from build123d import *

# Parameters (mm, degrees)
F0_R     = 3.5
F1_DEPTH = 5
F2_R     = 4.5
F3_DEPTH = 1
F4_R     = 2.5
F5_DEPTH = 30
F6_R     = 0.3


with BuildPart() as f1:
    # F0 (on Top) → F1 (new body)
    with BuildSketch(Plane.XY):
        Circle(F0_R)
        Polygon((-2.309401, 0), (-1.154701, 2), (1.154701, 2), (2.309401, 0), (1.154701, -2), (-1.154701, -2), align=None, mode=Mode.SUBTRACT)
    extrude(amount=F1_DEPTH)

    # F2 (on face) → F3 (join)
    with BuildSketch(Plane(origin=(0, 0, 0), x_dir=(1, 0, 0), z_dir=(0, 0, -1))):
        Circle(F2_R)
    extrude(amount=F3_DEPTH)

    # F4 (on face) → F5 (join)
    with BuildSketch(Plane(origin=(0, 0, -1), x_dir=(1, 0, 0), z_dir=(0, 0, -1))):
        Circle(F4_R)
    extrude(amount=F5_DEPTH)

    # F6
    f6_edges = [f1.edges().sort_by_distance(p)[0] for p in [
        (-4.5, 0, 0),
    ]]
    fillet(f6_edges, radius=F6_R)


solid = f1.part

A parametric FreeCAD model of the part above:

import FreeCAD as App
import Part
import Sketcher
Q = App.Units.Quantity


def edges_at(feature, points):
    """Names of the edges that pass closest to the given points."""
    edges = feature.Shape.Edges
    near = lambda p: min(range(len(edges)), key=lambda i: edges[i].distToShape(Part.Vertex(*p))[0])
    return sorted({f"Edge{near(p) + 1}" for p in points})

doc = App.newDocument("Part")
params = doc.addObject("Spreadsheet::Sheet", "Params")
for row, (alias, value) in enumerate([
    ("sketch1_diameter", "7 mm"),
    ("pad1_length", "5 mm"),
    ("sketch2_diameter", "9 mm"),
    ("pad2_length", "1 mm"),
    ("sketch3_diameter", "5 mm"),
    ("pad3_length", "30 mm"),
    ("fillet_radius", "0.3 mm"),
], start=1):
    params.set(f"A{row}", alias)
    params.set(f"B{row}", "=" + value)
    params.setAlias(f"B{row}", alias)

body = doc.addObject("PartDesign::Body", "Body")

sketch1 = body.newObject("Sketcher::SketchObject", "Sketch")
sketch1.AttachmentSupport = (doc.getObject("XY_Plane"), [""])
sketch1.MapMode = "FlatFace"
sketch1.addGeometry([
    Part.Circle(App.Vector(0, 0, 0), App.Vector(0, 0, 1), 3.5),
    Part.LineSegment(App.Vector(-1.154701, -2, 0), App.Vector(-2.309401, 0, 0)),
    Part.LineSegment(App.Vector(-2.309401, 0, 0), App.Vector(-1.154701, 2, 0)),
    Part.LineSegment(App.Vector(-1.154701, 2, 0), App.Vector(1.154701, 2, 0)),
    Part.LineSegment(App.Vector(1.154701, 2, 0), App.Vector(2.309401, 0, 0)),
    Part.LineSegment(App.Vector(2.309401, 0, 0), App.Vector(1.154701, -2, 0)),
    Part.LineSegment(App.Vector(1.154701, -2, 0), App.Vector(-1.154701, -2, 0)),
], False)
sketch1.addConstraint([
    Sketcher.Constraint("Coincident", 1, 2, 2, 1),
    Sketcher.Constraint("Coincident", 2, 2, 3, 1),
    Sketcher.Constraint("Coincident", 3, 2, 4, 1),
    Sketcher.Constraint("Coincident", 4, 2, 5, 1),
    Sketcher.Constraint("Coincident", 5, 2, 6, 1),
    Sketcher.Constraint("Coincident", 6, 2, 1, 1),
    Sketcher.Constraint("Horizontal", 3),
    Sketcher.Constraint("Horizontal", 6),
    Sketcher.Constraint("Coincident", 0, 3, -1, 1),
    Sketcher.Constraint("Symmetric", 1, 2, 4, 2, -1, 1),
    Sketcher.Constraint("Symmetric", 2, 2, 5, 2, -1, 1),
    Sketcher.Constraint("PointOnObject", 1, 2, -1),
    Sketcher.Constraint("Parallel", 1, 4),
    Sketcher.Constraint("Vertical", 3, 2, 5, 2),
    Sketcher.Constraint("Diameter", 0, Q("7 mm")),
    Sketcher.Constraint("Angle", 1, Q("119.999988 deg")),
    Sketcher.Constraint("DistanceY", -1, 1, 2, 2, Q("2 mm")),
    Sketcher.Constraint("DistanceX", 3, 1, 3, 2, Q("2.309402 mm")),
])
sketch1.setExpression("Constraints[14]", "Params.sketch1_diameter")
pad1 = body.newObject("PartDesign::Pad", "Pad")
pad1.Profile = sketch1
pad1.setExpression("Length", "Params.pad1_length")

sketch2 = body.newObject("Sketcher::SketchObject", "Sketch001")
sketch2.AttachmentSupport = (doc.getObject("XY_Plane"), [""])
sketch2.MapMode = "FlatFace"
sketch2.addGeometry(Part.Circle(App.Vector(0, 0, 0), App.Vector(0, 0, 1), 4.5), False)
sketch2.addConstraint([
    Sketcher.Constraint("Coincident", 0, 3, -1, 1),
    Sketcher.Constraint("Diameter", 0, Q("9 mm")),
])
sketch2.setExpression("Constraints[1]", "Params.sketch2_diameter")
pad2 = body.newObject("PartDesign::Pad", "Pad001")
pad2.Profile = sketch2
pad2.setExpression("Length", "Params.pad2_length")
pad2.Reversed = True

sketch3 = body.newObject("Sketcher::SketchObject", "Sketch002")
sketch3.AttachmentSupport = (doc.getObject("XY_Plane"), [""])
sketch3.MapMode = "FlatFace"
sketch3.AttachmentOffset = App.Placement(App.Vector(0, 0, -1), App.Rotation())
sketch3.addGeometry(Part.Circle(App.Vector(0, 0, 0), App.Vector(0, 0, 1), 2.5), False)
sketch3.addConstraint([
    Sketcher.Constraint("Coincident", 0, 3, -1, 1),
    Sketcher.Constraint("Diameter", 0, Q("5 mm")),
])
sketch3.setExpression("Constraints[1]", "Params.sketch3_diameter")
pad3 = body.newObject("PartDesign::Pad", "Pad002")
pad3.Profile = sketch3
pad3.setExpression("Length", "Params.pad3_length")
pad3.Reversed = True
doc.recompute()

fillet = body.newObject("PartDesign::Fillet", "Fillet")
fillet.Base = (pad3, edges_at(pad3, [(-4.5, 0, 0)]))
fillet.setExpression("Radius", "Params.fillet_radius")

doc.recompute()
